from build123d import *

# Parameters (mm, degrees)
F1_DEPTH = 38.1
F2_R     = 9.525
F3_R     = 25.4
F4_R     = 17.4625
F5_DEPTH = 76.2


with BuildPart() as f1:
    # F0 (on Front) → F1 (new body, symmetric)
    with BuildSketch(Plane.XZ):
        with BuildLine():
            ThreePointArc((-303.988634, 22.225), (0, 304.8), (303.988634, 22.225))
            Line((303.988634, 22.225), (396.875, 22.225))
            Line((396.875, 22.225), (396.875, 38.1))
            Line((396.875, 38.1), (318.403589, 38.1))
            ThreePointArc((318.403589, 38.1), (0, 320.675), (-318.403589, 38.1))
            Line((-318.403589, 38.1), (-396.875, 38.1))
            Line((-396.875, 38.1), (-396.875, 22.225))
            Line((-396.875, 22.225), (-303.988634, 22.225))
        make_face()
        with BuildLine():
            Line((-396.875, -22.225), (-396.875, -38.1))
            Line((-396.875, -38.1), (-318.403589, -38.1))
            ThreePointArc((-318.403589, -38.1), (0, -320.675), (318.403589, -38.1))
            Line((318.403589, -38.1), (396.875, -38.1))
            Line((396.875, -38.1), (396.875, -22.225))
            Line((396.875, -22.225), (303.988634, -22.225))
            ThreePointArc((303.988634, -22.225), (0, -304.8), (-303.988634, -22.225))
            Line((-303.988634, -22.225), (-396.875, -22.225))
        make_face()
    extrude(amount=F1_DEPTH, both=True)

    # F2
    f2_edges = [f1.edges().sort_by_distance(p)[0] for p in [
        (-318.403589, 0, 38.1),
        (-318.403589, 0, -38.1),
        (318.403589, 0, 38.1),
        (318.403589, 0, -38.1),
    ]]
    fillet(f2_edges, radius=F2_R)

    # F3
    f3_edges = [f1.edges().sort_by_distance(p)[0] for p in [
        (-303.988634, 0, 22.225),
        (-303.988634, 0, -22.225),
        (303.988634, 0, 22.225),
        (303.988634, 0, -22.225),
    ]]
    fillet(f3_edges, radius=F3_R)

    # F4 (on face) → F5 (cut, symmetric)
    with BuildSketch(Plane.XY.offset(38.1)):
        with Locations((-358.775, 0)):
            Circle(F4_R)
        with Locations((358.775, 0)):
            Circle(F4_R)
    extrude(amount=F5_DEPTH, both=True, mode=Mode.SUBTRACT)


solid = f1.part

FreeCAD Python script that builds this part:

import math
import FreeCAD as App
import Part
import Sketcher
Q = App.Units.Quantity


def edges_at(feature, points):
    """Names of the edges that pass closest to the given points."""
    edges = feature.Shape.Edges
    near = lambda p: min(range(len(edges)), key=lambda i: edges[i].distToShape(Part.Vertex(*p))[0])
    return sorted({f"Edge{near(p) + 1}" for p in points})

doc = App.newDocument("Part")
body = doc.addObject("PartDesign::Body", "Body")
body.AllowCompound = True

# Sketch on XZ plane
sketch1 = doc.addObject("Sketcher::SketchObject", "Sketch")
body.addObject(sketch1)
sketch1.AttachmentSupport = (doc.XZ_Plane, [""])
sketch1.MapMode = "FlatFace"
sketch1.addGeometry(Part.ArcOfCircle(Part.Circle(App.Vector(0, 0, 0), App.Vector(0, 0, 1), 305), math.radians(4), math.radians(176)), False)
sketch1.addGeometry(Part.LineSegment(App.Vector(304, 22, 0), App.Vector(397, 22, 0)), False)
sketch1.addGeometry(Part.LineSegment(App.Vector(397, 22, 0), App.Vector(397, 38, 0)), False)
sketch1.addGeometry(Part.LineSegment(App.Vector(397, 38, 0), App.Vector(318, 38, 0)), False)
sketch1.addGeometry(Part.ArcOfCircle(Part.Circle(App.Vector(0, 0, 0), App.Vector(0, 0, 1), 321), math.radians(7), math.radians(173)), False)
sketch1.addGeometry(Part.LineSegment(App.Vector(-318, 38, 0), App.Vector(-397, 38, 0)), False)
sketch1.addGeometry(Part.LineSegment(App.Vector(-397, 38, 0), App.Vector(-397, 22, 0)), False)
sketch1.addGeometry(Part.LineSegment(App.Vector(-397, 22, 0), App.Vector(-304, 22, 0)), False)
sketch1.addGeometry(Part.LineSegment(App.Vector(-397, -22, 0), App.Vector(-397, -38, 0)), False)
sketch1.addGeometry(Part.LineSegment(App.Vector(-397, -38, 0), App.Vector(-318, -38, 0)), False)
sketch1.addGeometry(Part.ArcOfCircle(Part.Circle(App.Vector(0, 0, 0), App.Vector(0, 0, 1), 321), math.radians(-173), math.radians(-7)), False)
sketch1.addGeometry(Part.LineSegment(App.Vector(318, -38, 0), App.Vector(397, -38, 0)), False)
sketch1.addGeometry(Part.LineSegment(App.Vector(397, -38, 0), App.Vector(397, -22, 0)), False)
sketch1.addGeometry(Part.LineSegment(App.Vector(397, -22, 0), App.Vector(304, -22, 0)), False)
sketch1.addGeometry(Part.ArcOfCircle(Part.Circle(App.Vector(0, 0, 0), App.Vector(0, 0, 1), 305), math.radians(-176), math.radians(-4)), False)
sketch1.addGeometry(Part.LineSegment(App.Vector(-304, -22, 0), App.Vector(-397, -22, 0)), False)
sketch1.addConstraint(Sketcher.Constraint("Coincident", 0, 1, 1, 1))
sketch1.addConstraint(Sketcher.Constraint("Coincident", 1, 2, 2, 1))
sketch1.addConstraint(Sketcher.Constraint("Coincident", 2, 2, 3, 1))
sketch1.addConstraint(Sketcher.Constraint("Coincident", 3, 2, 4, 1))
sketch1.addConstraint(Sketcher.Constraint("Coincident", 4, 2, 5, 1))
sketch1.addConstraint(Sketcher.Constraint("Coincident", 5, 2, 6, 1))
sketch1.addConstraint(Sketcher.Constraint("Coincident", 6, 2, 7, 1))
sketch1.addConstraint(Sketcher.Constraint("Coincident", 7, 2, 0, 2))
sketch1.addConstraint(Sketcher.Constraint("Coincident", 8, 2, 9, 1))
sketch1.addConstraint(Sketcher.Constraint("Coincident", 9, 2, 10, 1))
sketch1.addConstraint(Sketcher.Constraint("Coincident", 10, 2, 11, 1))
sketch1.addConstraint(Sketcher.Constraint("Coincident", 11, 2, 12, 1))
sketch1.addConstraint(Sketcher.Constraint("Coincident", 12, 2, 13, 1))
sketch1.addConstraint(Sketcher.Constraint("Coincident", 13, 2, 14, 2))
sketch1.addConstraint(Sketcher.Constraint("Coincident", 14, 1, 15, 1))
sketch1.addConstraint(Sketcher.Constraint("Coincident", 15, 2, 8, 1))
sketch1.addConstraint(Sketcher.Constraint("Horizontal", 1))
sketch1.addConstraint(Sketcher.Constraint("Vertical", 2))
sketch1.addConstraint(Sketcher.Constraint("Horizontal", 3))
sketch1.addConstraint(Sketcher.Constraint("Horizontal", 5))
sketch1.addConstraint(Sketcher.Constraint("Vertical", 6))
sketch1.addConstraint(Sketcher.Constraint("Horizontal", 7))
sketch1.addConstraint(Sketcher.Constraint("Vertical", 8))
sketch1.addConstraint(Sketcher.Constraint("Horizontal", 9))
sketch1.addConstraint(Sketcher.Constraint("Horizontal", 11))
sketch1.addConstraint(Sketcher.Constraint("Vertical", 12))
sketch1.addConstraint(Sketcher.Constraint("Horizontal", 13))
sketch1.addConstraint(Sketcher.Constraint("Horizontal", 15))
sketch1.addConstraint(Sketcher.Constraint("Coincident", 0, 3, -1, 1))
sketch1.addConstraint(Sketcher.Constraint("Coincident", 4, 3, -1, 1))
sketch1.addConstraint(Sketcher.Constraint("Coincident", 10, 3, -1, 1))
sketch1.addConstraint(Sketcher.Constraint("Coincident", 14, 3, -1, 1))
sketch1.addConstraint(Sketcher.Constraint("Equal", 4, 10))
sketch1.addConstraint(Sketcher.Constraint("Equal", 0, 14))
sketch1.addConstraint(Sketcher.Constraint("Symmetric", 2, 2, 8, 2, -1, 1))
sketch1.addConstraint(Sketcher.Constraint("Symmetric", 5, 2, 11, 2, -1, 1))
sketch1.addConstraint(Sketcher.Constraint("Symmetric", 2, 2, 5, 2, -2))
sketch1.addConstraint(Sketcher.Constraint("Horizontal", 1, 2, 6, 2))
sketch1.addConstraint(Sketcher.Constraint("Horizontal", 13, 2, 14, 1))
sketch1.addConstraint(Sketcher.Constraint("Equal", 7, 13))
sketch1.addConstraint(Sketcher.Constraint("Radius", 0, Q("12 in")))
sketch1.addConstraint(Sketcher.Constraint("Radius", 4, Q("12.625 in")))
sketch1.addConstraint(Sketcher.Constraint("DistanceY", 8, 2, 5, 2, Q("3 in")))
sketch1.addConstraint(Sketcher.Constraint("DistanceY", 2, 1, 2, 2, Q("0.625 in")))
sketch1.addConstraint(Sketcher.Constraint("DistanceX", -1, 1, 1, 2, Q("15.625 in")))
pad1 = doc.addObject("PartDesign::Pad", "Pad")
body.addObject(pad1)
pad1.Profile = sketch1
pad1.Length = Q("3 in")
pad1.Midplane = True
doc.recompute()

fillet = doc.addObject("PartDesign::Fillet", "Fillet")
body.addObject(fillet)
fillet.Base = (pad1, edges_at(pad1, [
    (-318.404, 0, 38.1),
    (-318.404, 0, -38.1),
    (318.404, 0, 38.1),
    (318.404, 0, -38.1),
]))
fillet.Radius = Q("0.375 in")
doc.recompute()

fillet2 = doc.addObject("PartDesign::Fillet", "Fillet001")
body.addObject(fillet2)
fillet2.Base = (fillet, edges_at(fillet, [
    (-303.989, 0, 22.225),
    (-303.989, 0, -22.225),
    (303.989, 0, 22.225),
    (303.989, 0, -22.225),
]))
fillet2.Radius = Q("1 in")

# Sketch on XY plane
sketch2 = doc.addObject("Sketcher::SketchObject", "Sketch001")
body.addObject(sketch2)
sketch2.AttachmentSupport = (doc.XY_Plane, [""])
sketch2.MapMode = "FlatFace"
sketch2.AttachmentOffset = App.Placement(App.Vector(0, 0, 1.5 * 25.4), App.Rotation())
sketch2.addGeometry(Part.Circle(App.Vector(-359, 0, 0), App.Vector(0, 0, 1), 17), False)
sketch2.addGeometry(Part.Circle(App.Vector(359, 0, 0), App.Vector(0, 0, 1), 17), False)
sketch2.addConstraint(Sketcher.Constraint("Equal", 0, 1))
sketch2.addConstraint(Sketcher.Constraint("Symmetric", 0, 3, 1, 3, -1, 1))
sketch2.addConstraint(Sketcher.Constraint("PointOnObject", 0, 3, -1))
sketch2.addConstraint(Sketcher.Constraint("Diameter", 0, Q("1.375 in")))
sketch2.addConstraint(Sketcher.Constraint("DistanceX", 0, 3, 1, 3, Q("28.25 in")))
pocket1 = doc.addObject("PartDesign::Pocket", "Pocket")
body.addObject(pocket1)
pocket1.Profile = sketch2
pocket1.Length = Q("6 in")
pocket1.Midplane = True

doc.recompute()
